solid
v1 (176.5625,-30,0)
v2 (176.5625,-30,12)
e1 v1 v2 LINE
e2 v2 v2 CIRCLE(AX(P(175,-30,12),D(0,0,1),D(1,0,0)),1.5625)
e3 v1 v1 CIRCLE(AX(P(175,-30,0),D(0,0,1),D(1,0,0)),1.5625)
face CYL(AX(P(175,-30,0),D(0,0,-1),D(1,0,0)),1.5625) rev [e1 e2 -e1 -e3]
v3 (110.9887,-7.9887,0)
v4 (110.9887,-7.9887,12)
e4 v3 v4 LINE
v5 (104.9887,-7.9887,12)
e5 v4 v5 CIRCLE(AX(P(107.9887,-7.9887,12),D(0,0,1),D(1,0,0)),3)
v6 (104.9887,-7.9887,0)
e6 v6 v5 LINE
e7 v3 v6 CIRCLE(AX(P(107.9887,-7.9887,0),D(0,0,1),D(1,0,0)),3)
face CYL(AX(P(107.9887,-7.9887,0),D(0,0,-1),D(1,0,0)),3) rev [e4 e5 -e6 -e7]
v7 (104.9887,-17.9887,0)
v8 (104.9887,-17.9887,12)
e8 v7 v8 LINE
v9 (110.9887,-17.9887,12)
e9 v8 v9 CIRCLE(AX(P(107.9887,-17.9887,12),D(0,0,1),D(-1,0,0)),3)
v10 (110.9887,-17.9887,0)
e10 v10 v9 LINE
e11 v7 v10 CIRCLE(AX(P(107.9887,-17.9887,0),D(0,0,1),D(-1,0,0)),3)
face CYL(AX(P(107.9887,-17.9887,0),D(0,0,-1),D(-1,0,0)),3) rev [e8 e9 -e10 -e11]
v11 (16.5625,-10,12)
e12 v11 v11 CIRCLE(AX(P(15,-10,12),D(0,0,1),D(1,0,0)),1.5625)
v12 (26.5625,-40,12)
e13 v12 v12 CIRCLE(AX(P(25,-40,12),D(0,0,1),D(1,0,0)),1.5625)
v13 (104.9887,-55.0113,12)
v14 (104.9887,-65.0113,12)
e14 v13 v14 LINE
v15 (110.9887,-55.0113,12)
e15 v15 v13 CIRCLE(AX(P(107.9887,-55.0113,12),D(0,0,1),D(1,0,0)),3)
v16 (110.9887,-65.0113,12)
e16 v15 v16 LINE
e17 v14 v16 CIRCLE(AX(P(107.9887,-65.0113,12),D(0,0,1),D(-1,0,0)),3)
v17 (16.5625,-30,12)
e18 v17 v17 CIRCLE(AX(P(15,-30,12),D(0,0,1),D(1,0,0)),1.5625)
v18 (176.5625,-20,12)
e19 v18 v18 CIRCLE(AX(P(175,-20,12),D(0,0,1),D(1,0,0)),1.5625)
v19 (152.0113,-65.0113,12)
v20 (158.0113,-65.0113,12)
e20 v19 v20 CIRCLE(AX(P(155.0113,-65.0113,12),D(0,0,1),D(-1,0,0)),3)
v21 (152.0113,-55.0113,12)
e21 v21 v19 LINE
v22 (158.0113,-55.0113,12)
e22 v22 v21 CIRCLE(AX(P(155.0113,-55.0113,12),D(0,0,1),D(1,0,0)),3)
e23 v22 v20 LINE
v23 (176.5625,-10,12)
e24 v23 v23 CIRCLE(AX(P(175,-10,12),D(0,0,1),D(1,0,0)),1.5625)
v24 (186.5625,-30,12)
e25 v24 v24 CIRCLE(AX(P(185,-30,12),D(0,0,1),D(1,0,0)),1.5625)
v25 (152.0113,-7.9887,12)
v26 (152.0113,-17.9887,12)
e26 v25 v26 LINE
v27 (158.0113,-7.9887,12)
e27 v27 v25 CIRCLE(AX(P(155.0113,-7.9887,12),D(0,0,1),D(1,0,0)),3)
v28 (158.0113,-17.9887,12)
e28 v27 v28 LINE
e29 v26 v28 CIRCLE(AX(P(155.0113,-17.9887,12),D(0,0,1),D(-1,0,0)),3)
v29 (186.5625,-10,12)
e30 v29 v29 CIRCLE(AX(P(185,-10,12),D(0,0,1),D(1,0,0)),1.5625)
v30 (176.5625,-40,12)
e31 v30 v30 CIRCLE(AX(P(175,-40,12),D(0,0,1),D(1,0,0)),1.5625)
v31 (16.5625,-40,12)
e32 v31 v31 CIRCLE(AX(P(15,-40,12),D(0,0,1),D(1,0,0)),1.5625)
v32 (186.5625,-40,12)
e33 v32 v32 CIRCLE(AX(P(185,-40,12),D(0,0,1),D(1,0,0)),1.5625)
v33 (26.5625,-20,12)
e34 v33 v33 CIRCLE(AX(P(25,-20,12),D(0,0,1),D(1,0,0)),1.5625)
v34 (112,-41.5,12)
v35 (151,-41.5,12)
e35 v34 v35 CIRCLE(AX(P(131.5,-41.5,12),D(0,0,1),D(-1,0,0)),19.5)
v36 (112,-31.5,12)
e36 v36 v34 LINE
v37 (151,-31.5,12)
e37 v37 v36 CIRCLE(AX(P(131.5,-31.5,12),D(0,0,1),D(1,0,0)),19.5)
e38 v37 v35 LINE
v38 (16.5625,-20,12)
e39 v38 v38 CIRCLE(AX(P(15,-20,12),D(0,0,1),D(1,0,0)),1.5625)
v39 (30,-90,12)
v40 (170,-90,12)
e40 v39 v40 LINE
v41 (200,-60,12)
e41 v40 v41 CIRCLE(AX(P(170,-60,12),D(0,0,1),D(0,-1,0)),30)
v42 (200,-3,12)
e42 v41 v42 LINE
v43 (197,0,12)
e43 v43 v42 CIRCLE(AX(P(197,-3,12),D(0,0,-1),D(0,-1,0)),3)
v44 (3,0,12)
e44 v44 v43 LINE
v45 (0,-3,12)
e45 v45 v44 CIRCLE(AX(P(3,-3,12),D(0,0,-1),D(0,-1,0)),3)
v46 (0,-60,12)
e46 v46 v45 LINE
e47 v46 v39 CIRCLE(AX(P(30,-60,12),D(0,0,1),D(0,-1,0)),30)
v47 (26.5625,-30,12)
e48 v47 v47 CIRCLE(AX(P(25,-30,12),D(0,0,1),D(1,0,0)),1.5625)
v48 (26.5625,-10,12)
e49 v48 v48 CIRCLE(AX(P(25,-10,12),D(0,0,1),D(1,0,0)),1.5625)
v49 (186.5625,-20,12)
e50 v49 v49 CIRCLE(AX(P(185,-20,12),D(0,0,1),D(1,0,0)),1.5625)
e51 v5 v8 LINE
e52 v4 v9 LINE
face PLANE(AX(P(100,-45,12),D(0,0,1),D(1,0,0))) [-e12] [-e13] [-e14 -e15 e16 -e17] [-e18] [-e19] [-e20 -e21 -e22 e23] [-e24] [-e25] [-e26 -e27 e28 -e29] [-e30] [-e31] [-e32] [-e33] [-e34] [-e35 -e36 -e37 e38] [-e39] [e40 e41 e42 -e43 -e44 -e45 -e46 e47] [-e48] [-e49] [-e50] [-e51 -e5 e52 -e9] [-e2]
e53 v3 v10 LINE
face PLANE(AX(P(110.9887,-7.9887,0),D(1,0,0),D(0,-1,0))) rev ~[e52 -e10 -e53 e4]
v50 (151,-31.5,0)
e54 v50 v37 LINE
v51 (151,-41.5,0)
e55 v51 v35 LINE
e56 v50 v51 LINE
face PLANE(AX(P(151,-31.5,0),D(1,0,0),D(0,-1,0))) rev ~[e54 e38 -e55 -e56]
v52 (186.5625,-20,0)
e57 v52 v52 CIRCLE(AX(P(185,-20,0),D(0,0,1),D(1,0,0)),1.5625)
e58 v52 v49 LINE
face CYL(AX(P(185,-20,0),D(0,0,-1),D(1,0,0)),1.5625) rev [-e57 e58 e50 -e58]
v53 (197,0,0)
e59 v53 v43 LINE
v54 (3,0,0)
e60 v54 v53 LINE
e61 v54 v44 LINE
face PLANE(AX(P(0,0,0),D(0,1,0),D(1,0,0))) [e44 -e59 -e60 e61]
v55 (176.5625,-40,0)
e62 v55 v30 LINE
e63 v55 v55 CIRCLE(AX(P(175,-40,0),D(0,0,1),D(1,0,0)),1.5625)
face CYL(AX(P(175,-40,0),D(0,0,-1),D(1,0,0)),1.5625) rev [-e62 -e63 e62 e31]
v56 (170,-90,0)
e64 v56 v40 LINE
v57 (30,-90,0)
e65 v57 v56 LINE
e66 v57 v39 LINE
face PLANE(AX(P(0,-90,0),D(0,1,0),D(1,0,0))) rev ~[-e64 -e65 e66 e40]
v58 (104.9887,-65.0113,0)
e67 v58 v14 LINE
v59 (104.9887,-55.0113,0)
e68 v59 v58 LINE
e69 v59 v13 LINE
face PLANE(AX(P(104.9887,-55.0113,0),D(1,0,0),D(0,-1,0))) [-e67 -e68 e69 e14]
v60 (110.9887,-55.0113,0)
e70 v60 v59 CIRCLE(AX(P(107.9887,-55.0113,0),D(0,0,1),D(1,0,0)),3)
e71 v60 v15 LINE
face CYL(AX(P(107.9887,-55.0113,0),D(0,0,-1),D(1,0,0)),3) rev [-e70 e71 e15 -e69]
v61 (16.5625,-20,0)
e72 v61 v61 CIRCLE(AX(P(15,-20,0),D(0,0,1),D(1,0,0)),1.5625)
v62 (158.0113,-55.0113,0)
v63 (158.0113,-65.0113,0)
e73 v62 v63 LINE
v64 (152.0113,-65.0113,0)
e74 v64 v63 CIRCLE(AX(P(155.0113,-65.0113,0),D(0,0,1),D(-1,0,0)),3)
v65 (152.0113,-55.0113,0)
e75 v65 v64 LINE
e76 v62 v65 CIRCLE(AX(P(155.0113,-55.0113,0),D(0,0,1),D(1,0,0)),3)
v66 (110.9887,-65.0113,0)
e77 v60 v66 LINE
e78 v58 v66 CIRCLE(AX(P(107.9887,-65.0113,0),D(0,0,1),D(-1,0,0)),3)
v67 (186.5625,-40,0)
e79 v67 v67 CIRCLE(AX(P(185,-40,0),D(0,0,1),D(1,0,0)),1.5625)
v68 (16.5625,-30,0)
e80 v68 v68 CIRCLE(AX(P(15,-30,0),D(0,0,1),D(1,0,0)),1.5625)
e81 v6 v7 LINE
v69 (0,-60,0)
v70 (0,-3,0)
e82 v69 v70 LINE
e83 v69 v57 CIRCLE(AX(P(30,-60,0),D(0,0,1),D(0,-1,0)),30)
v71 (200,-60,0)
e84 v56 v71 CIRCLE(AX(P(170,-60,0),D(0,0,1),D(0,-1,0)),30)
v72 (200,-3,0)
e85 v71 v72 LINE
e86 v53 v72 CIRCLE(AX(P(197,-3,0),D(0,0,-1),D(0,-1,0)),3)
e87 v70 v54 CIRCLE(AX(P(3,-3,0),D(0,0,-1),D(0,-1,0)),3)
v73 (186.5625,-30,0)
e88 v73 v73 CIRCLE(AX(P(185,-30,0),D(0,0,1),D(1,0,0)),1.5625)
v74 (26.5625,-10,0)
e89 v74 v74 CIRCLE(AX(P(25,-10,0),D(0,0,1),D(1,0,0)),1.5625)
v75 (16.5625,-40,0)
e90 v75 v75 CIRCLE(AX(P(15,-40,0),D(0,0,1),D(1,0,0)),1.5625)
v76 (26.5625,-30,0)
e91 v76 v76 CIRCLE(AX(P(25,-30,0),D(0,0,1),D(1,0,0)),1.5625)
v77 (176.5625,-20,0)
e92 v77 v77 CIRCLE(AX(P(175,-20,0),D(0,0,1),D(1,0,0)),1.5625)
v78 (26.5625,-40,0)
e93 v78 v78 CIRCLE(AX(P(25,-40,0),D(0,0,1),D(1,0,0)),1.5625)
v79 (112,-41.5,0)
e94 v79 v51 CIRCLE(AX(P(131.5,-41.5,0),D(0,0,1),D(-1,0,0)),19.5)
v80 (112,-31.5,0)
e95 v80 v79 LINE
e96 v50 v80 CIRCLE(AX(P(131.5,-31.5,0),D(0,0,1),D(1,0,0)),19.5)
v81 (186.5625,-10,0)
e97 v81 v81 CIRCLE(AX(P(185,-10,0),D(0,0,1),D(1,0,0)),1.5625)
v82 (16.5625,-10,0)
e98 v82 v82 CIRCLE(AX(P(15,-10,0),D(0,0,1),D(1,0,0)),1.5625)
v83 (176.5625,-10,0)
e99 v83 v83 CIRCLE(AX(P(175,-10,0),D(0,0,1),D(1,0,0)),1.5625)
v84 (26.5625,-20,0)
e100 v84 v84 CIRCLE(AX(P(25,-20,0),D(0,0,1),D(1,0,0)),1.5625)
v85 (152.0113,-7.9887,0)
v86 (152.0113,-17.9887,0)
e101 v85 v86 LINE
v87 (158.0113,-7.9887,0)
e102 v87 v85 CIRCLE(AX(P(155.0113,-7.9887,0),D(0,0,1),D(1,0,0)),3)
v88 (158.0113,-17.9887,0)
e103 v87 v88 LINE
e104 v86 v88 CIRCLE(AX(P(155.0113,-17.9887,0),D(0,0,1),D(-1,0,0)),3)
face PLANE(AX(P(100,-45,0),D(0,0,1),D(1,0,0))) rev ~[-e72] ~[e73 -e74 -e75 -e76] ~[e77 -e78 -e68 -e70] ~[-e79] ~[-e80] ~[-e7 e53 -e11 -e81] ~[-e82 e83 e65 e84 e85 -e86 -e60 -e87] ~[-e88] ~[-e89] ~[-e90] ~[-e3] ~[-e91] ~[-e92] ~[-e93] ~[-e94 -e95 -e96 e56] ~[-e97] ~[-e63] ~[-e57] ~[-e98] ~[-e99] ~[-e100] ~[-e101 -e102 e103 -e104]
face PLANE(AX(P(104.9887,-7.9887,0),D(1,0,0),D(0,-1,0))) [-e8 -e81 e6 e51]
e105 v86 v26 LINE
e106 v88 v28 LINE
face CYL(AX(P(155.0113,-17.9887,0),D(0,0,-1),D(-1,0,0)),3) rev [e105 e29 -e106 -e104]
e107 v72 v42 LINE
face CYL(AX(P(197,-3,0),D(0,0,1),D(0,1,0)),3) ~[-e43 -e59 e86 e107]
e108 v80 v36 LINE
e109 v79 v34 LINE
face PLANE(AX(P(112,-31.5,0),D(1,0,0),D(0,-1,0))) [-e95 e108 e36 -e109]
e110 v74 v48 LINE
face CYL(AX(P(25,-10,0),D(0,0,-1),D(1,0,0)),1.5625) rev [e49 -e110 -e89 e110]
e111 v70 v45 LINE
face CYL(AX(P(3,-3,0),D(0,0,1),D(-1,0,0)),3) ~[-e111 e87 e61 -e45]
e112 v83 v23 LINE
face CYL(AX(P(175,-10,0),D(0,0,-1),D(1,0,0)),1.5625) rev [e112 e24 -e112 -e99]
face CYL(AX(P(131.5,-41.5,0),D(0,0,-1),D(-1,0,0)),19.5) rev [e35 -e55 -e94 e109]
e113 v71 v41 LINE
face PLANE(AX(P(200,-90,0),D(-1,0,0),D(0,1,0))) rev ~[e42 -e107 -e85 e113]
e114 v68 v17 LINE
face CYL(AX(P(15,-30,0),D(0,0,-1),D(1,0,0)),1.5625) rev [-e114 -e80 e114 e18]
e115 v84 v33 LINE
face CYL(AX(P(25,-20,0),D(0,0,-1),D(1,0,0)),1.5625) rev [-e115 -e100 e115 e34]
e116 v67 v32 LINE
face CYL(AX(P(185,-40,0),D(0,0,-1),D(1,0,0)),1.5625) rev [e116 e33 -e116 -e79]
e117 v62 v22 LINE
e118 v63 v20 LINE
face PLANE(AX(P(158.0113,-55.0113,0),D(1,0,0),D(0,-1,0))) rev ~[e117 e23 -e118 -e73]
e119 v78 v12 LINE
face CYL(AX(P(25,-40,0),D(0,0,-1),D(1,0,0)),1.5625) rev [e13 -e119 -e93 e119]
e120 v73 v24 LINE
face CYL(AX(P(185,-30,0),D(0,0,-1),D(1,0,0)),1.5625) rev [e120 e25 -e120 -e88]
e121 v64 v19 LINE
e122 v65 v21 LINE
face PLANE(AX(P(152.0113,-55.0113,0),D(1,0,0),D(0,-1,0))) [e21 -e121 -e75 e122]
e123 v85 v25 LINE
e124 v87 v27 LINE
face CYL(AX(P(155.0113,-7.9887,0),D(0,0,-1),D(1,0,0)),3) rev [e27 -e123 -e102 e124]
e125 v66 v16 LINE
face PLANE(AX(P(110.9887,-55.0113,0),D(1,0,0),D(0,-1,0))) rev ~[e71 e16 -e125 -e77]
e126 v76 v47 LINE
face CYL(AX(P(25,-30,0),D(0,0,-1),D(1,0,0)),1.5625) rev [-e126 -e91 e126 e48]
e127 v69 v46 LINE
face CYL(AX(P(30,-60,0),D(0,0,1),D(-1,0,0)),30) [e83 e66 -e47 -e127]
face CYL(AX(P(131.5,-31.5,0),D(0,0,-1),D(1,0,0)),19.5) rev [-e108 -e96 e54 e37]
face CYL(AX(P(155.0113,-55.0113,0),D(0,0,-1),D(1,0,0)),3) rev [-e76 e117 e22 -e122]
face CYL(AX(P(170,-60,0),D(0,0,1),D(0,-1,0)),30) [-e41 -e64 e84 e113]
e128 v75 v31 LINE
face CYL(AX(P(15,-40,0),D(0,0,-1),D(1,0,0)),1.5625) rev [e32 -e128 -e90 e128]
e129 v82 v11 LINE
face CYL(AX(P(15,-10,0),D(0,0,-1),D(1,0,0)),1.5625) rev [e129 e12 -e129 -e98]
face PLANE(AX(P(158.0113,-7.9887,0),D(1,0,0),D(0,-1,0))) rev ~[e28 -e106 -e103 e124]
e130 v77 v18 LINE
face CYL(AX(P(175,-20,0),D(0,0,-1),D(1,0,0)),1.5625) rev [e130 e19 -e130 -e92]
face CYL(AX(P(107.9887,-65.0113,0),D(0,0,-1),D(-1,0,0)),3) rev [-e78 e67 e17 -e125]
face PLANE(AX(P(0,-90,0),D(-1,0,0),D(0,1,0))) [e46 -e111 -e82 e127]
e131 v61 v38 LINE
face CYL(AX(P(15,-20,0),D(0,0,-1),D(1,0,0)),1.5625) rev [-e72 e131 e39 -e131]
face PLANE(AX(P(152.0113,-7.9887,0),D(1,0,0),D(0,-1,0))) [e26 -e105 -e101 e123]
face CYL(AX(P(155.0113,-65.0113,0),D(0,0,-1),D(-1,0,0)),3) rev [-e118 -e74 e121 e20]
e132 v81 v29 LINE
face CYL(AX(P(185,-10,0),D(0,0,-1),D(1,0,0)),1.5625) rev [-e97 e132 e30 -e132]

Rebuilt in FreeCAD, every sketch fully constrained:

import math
import FreeCAD as App
import Part
import Sketcher


def edges_at(feature, points):
    """Names of the edges that pass closest to the given points."""
    edges = feature.Shape.Edges
    near = lambda p: min(range(len(edges)), key=lambda i: edges[i].distToShape(Part.Vertex(*p))[0])
    return sorted({f"Edge{near(p) + 1}" for p in points})


def add_polygon(sketch, points):
    """Adds a closed chain of lines whose ends are joined by coincident constraints."""
    first, n = sketch.GeometryCount, len(points)
    for a, b in zip(points, points[1:] + points[:1]):
        sketch.addGeometry(Part.LineSegment(App.Vector(*a, 0), App.Vector(*b, 0)), False)
    for i in range(n):
        sketch.addConstraint(Sketcher.Constraint("Coincident", first + i, 2, first + (i + 1) % n, 1))

doc = App.newDocument("Part")
params = doc.addObject("Spreadsheet::Sheet", "Params")
for row, (alias, value) in enumerate([
    ("sketch1_radius", "3 mm"),
    ("sketch1_radius2", "19.5 mm"),
    ("sketch1_width", "200 mm"),
    ("sketch1_height", "90 mm"),
    ("sketch1_height2", "10 mm"),
    ("pad1_length", "12 mm"),
    ("fillet_radius", "30 mm"),
    ("fillet2_radius", "3 mm"),
], start=1):
    params.set(f"A{row}", alias)
    params.set(f"B{row}", "=" + value)
    params.setAlias(f"B{row}", alias)

body = doc.addObject("PartDesign::Body", "Body")

# Sketch on XY plane
sketch1 = body.newObject("Sketcher::SketchObject", "Sketch")
sketch1.AttachmentSupport = (doc.getObject("XY_Plane"), [""])
sketch1.MapMode = "FlatFace"
add_polygon(sketch1, [(0, 0), (0, -90), (200, -90), (200, 0)])  # lines 0-3
sketch1.addGeometry(Part.Circle(App.Vector(15, -40, 0), App.Vector(0, 0, 1), 1.6), False)  # 4
sketch1.addGeometry(Part.Circle(App.Vector(25, -40, 0), App.Vector(0, 0, 1), 1.6), False)  # 5
sketch1.addGeometry(Part.ArcOfCircle(Part.Circle(App.Vector(108, -55, 0), App.Vector(0, 0, 1), 3), math.radians(0), math.radians(180)), False)  # 6
sketch1.addGeometry(Part.LineSegment(App.Vector(111, -55, 0), App.Vector(111, -65, 0)), False)  # 7
sketch1.addGeometry(Part.ArcOfCircle(Part.Circle(App.Vector(108, -65, 0), App.Vector(0, 0, 1), 3), math.radians(180), math.radians(360)), False)  # 8
sketch1.addGeometry(Part.LineSegment(App.Vector(105, -65, 0), App.Vector(105, -55, 0)), False)  # 9
sketch1.addGeometry(Part.ArcOfCircle(Part.Circle(App.Vector(155, -55, 0), App.Vector(0, 0, 1), 3), math.radians(0), math.radians(180)), False)  # 10
sketch1.addGeometry(Part.LineSegment(App.Vector(158, -55, 0), App.Vector(158, -65, 0)), False)  # 11
sketch1.addGeometry(Part.ArcOfCircle(Part.Circle(App.Vector(155, -65, 0), App.Vector(0, 0, 1), 3), math.radians(180), math.radians(360)), False)  # 12
sketch1.addGeometry(Part.LineSegment(App.Vector(152, -65, 0), App.Vector(152, -55, 0)), False)  # 13
sketch1.addGeometry(Part.Circle(App.Vector(175, -40, 0), App.Vector(0, 0, 1), 1.6), False)  # 14
sketch1.addGeometry(Part.Circle(App.Vector(185, -40, 0), App.Vector(0, 0, 1), 1.6), False)  # 15
sketch1.addGeometry(Part.Circle(App.Vector(15, -30, 0), App.Vector(0, 0, 1), 1.6), False)  # 16
sketch1.addGeometry(Part.Circle(App.Vector(25, -30, 0), App.Vector(0, 0, 1), 1.6), False)  # 17
sketch1.addGeometry(Part.Circle(App.Vector(15, -20, 0), App.Vector(0, 0, 1), 1.6), False)  # 18
sketch1.addGeometry(Part.Circle(App.Vector(25, -20, 0), App.Vector(0, 0, 1), 1.6), False)  # 19
sketch1.addGeometry(Part.Circle(App.Vector(15, -10, 0), App.Vector(0, 0, 1), 1.6), False)  # 20
sketch1.addGeometry(Part.Circle(App.Vector(25, -10, 0), App.Vector(0, 0, 1), 1.6), False)  # 21
sketch1.addGeometry(Part.ArcOfCircle(Part.Circle(App.Vector(131.5, -31.5, 0), App.Vector(0, 0, 1), 19.5), math.radians(0), math.radians(180)), False)  # 22
sketch1.addGeometry(Part.LineSegment(App.Vector(151, -31.5, 0), App.Vector(151, -41.5, 0)), False)  # 23
sketch1.addGeometry(Part.ArcOfCircle(Part.Circle(App.Vector(131.5, -41.5, 0), App.Vector(0, 0, 1), 19.5), math.radians(180), math.radians(360)), False)  # 24
sketch1.addGeometry(Part.LineSegment(App.Vector(112, -41.5, 0), App.Vector(112, -31.5, 0)), False)  # 25
sketch1.addGeometry(Part.Circle(App.Vector(175, -30, 0), App.Vector(0, 0, 1), 1.6), False)  # 26
sketch1.addGeometry(Part.Circle(App.Vector(185, -30, 0), App.Vector(0, 0, 1), 1.6), False)  # 27
sketch1.addGeometry(Part.ArcOfCircle(Part.Circle(App.Vector(108, -8, 0), App.Vector(0, 0, 1), 3), math.radians(0), math.radians(180)), False)  # 28
sketch1.addGeometry(Part.LineSegment(App.Vector(111, -8, 0), App.Vector(111, -18, 0)), False)  # 29
sketch1.addGeometry(Part.ArcOfCircle(Part.Circle(App.Vector(108, -18, 0), App.Vector(0, 0, 1), 3), math.radians(180), math.radians(360)), False)  # 30
sketch1.addGeometry(Part.LineSegment(App.Vector(105, -18, 0), App.Vector(105, -8, 0)), False)  # 31
sketch1.addGeometry(Part.ArcOfCircle(Part.Circle(App.Vector(155, -8, 0), App.Vector(0, 0, 1), 3), math.radians(0), math.radians(180)), False)  # 32
sketch1.addGeometry(Part.LineSegment(App.Vector(158, -8, 0), App.Vector(158, -18, 0)), False)  # 33
sketch1.addGeometry(Part.ArcOfCircle(Part.Circle(App.Vector(155, -18, 0), App.Vector(0, 0, 1), 3), math.radians(180), math.radians(360)), False)  # 34
sketch1.addGeometry(Part.LineSegment(App.Vector(152, -18, 0), App.Vector(152, -8, 0)), False)  # 35
sketch1.addGeometry(Part.Circle(App.Vector(175, -20, 0), App.Vector(0, 0, 1), 1.6), False)  # 36
sketch1.addGeometry(Part.Circle(App.Vector(185, -20, 0), App.Vector(0, 0, 1), 1.6), False)  # 37
sketch1.addGeometry(Part.Circle(App.Vector(175, -10, 0), App.Vector(0, 0, 1), 1.6), False)  # 38
sketch1.addGeometry(Part.Circle(App.Vector(185, -10, 0), App.Vector(0, 0, 1), 1.6), False)  # 39
sketch1.addConstraint([
    Sketcher.Constraint("Tangent", 6, 1, 7, 1),
    Sketcher.Constraint("Tangent", 7, 2, 8, 2),
    Sketcher.Constraint("Tangent", 8, 1, 9, 1),
    Sketcher.Constraint("Tangent", 9, 2, 6, 2),
    Sketcher.Constraint("Tangent", 10, 1, 11, 1),
    Sketcher.Constraint("Tangent", 11, 2, 12, 2),
    Sketcher.Constraint("Tangent", 12, 1, 13, 1),
    Sketcher.Constraint("Tangent", 13, 2, 10, 2),
    Sketcher.Constraint("Tangent", 22, 1, 23, 1),
    Sketcher.Constraint("Tangent", 23, 2, 24, 2),
    Sketcher.Constraint("Tangent", 24, 1, 25, 1),
    Sketcher.Constraint("Tangent", 25, 2, 22, 2),
    Sketcher.Constraint("Tangent", 28, 1, 29, 1),
    Sketcher.Constraint("Tangent", 29, 2, 30, 2),
    Sketcher.Constraint("Tangent", 30, 1, 31, 1),
    Sketcher.Constraint("Tangent", 31, 2, 28, 2),
    Sketcher.Constraint("Tangent", 32, 1, 33, 1),
    Sketcher.Constraint("Tangent", 33, 2, 34, 2),
    Sketcher.Constraint("Tangent", 34, 1, 35, 1),
    Sketcher.Constraint("Tangent", 35, 2, 32, 2),
    Sketcher.Constraint("Vertical", 0),
    Sketcher.Constraint("Horizontal", 1),
    Sketcher.Constraint("Vertical", 2),
    Sketcher.Constraint("Horizontal", 3),
    Sketcher.Constraint("Vertical", 7),
    Sketcher.Constraint("Vertical", 9),
    Sketcher.Constraint("Vertical", 11),
    Sketcher.Constraint("Vertical", 13),
    Sketcher.Constraint("Vertical", 23),
    Sketcher.Constraint("Vertical", 25),
    Sketcher.Constraint("Vertical", 29),
    Sketcher.Constraint("Vertical", 31),
    Sketcher.Constraint("Vertical", 33),
    Sketcher.Constraint("Vertical", 35),
    Sketcher.Constraint("Coincident", 3, 2, -1, 1),
    Sketcher.Constraint("Equal", 4, 5),
    Sketcher.Constraint("Equal", 8, 10),
    Sketcher.Constraint("Equal", 5, 14),
    Sketcher.Constraint("Equal", 14, 15),
    Sketcher.Constraint("Equal", 15, 16),
    Sketcher.Constraint("Equal", 16, 17),
    Sketcher.Constraint("Equal", 17, 18),
    Sketcher.Constraint("Equal", 18, 19),
    Sketcher.Constraint("Equal", 19, 20),
    Sketcher.Constraint("Equal", 20, 21),
    Sketcher.Constraint("Equal", 21, 26),
    Sketcher.Constraint("Equal", 26, 27),
    Sketcher.Constraint("Equal", 12, 28),
    Sketcher.Constraint("Equal", 30, 32),
    Sketcher.Constraint("Equal", 27, 36),
    Sketcher.Constraint("Equal", 36, 37),
    Sketcher.Constraint("Equal", 37, 38),
    Sketcher.Constraint("Equal", 38, 39),
    Sketcher.Constraint("Horizontal", 4, 3, 5, 3),
    Sketcher.Constraint("Horizontal", 6, 3, 10, 3),
    Sketcher.Constraint("Horizontal", 8, 3, 12, 3),
    Sketcher.Constraint("Horizontal", 5, 3, 14, 3),
    Sketcher.Constraint("Horizontal", 14, 3, 15, 3),
    Sketcher.Constraint("Horizontal", 16, 3, 17, 3),
    Sketcher.Constraint("Horizontal", 18, 3, 19, 3),
    Sketcher.Constraint("Horizontal", 20, 3, 21, 3),
    Sketcher.Constraint("Horizontal", 17, 3, 26, 3),
    Sketcher.Constraint("Horizontal", 26, 3, 27, 3),
    Sketcher.Constraint("Horizontal", 28, 3, 32, 3),
    Sketcher.Constraint("Horizontal", 30, 3, 34, 3),
    Sketcher.Constraint("Horizontal", 19, 3, 36, 3),
    Sketcher.Constraint("Horizontal", 36, 3, 37, 3),
    Sketcher.Constraint("Horizontal", 21, 3, 38, 3),
    Sketcher.Constraint("Horizontal", 38, 3, 39, 3),
    Sketcher.Constraint("Vertical", 4, 3, 16, 3),
    Sketcher.Constraint("Vertical", 5, 3, 17, 3),
    Sketcher.Constraint("Vertical", 16, 3, 18, 3),
    Sketcher.Constraint("Vertical", 17, 3, 19, 3),
    Sketcher.Constraint("Vertical", 18, 3, 20, 3),
    Sketcher.Constraint("Vertical", 19, 3, 21, 3),
    Sketcher.Constraint("Vertical", 14, 3, 26, 3),
    Sketcher.Constraint("Vertical", 15, 3, 27, 3),
    Sketcher.Constraint("Vertical", 8, 3, 28, 3),
    Sketcher.Constraint("Vertical", 12, 3, 32, 3),
    Sketcher.Constraint("Vertical", 26, 3, 36, 3),
    Sketcher.Constraint("Vertical", 27, 3, 37, 3),
    Sketcher.Constraint("Vertical", 36, 3, 38, 3),
    Sketcher.Constraint("Vertical", 37, 3, 39, 3),
    Sketcher.Constraint("Equal", 13, 23),
    Sketcher.Constraint("Equal", 25, 29),
    Sketcher.Constraint("Radius", 6, 3.0),
    Sketcher.Constraint("Radius", 22, 19.5),
    Sketcher.Constraint("DistanceX", 1, 1, 1, 2, 200.0),
    Sketcher.Constraint("DistanceY", 0, 2, 0, 1, 90.0),
    Sketcher.Constraint("DistanceY", 7, 2, 7, 1, 10.0),
    Sketcher.Constraint("Diameter", 4, 3.125),
    Sketcher.Constraint("DistanceX", -1, 1, 4, 3, 15.0),
    Sketcher.Constraint("DistanceY", 4, 3, -1, 1, 40.0),
    Sketcher.Constraint("DistanceX", -1, 1, 5, 3, 25.0),
    Sketcher.Constraint("DistanceX", -1, 1, 14, 3, 175.0),
    Sketcher.Constraint("DistanceX", -1, 1, 15, 3, 185.0),
    Sketcher.Constraint("DistanceY", 16, 3, -1, 1, 30.0),
    Sketcher.Constraint("DistanceY", 18, 3, -1, 1, 20.0),
    Sketcher.Constraint("DistanceY", 20, 3, -1, 1, 10.0),
    Sketcher.Constraint("DistanceX", -1, 1, 22, 1, 151.0),
    Sketcher.Constraint("DistanceY", 22, 3, -1, 1, 31.5),
    Sketcher.Constraint("DistanceX", -1, 1, 6, 3, 107.9887),
    Sketcher.Constraint("DistanceY", 6, 3, -1, 1, 55.0113),
    Sketcher.Constraint("DistanceX", -1, 1, 10, 3, 155.0113),
    Sketcher.Constraint("DistanceY", 28, 3, -1, 1, 7.9887),
])
sketch1.setExpression("Constraints[89]", "Params.sketch1_radius")
sketch1.setExpression("Constraints[90]", "Params.sketch1_radius2")
sketch1.setExpression("Constraints[91]", "Params.sketch1_width")
sketch1.setExpression("Constraints[92]", "Params.sketch1_height")
sketch1.setExpression("Constraints[93]", "Params.sketch1_height2")
pad1 = body.newObject("PartDesign::Pad", "Pad")
pad1.Profile = sketch1
pad1.setExpression("Length", "Params.pad1_length")
doc.recompute()

fillet = body.newObject("PartDesign::Fillet", "Fillet")
fillet.Base = (pad1, edges_at(pad1, [(0, -90, 6), (200, -90, 6)]))
fillet.setExpression("Radius", "Params.fillet_radius")
doc.recompute()

fillet2 = body.newObject("PartDesign::Fillet", "Fillet001")
fillet2.Base = (fillet, edges_at(fillet, [(200, 0, 6), (0, 0, 6)]))
fillet2.setExpression("Radius", "Params.fillet2_radius")

doc.recompute()
